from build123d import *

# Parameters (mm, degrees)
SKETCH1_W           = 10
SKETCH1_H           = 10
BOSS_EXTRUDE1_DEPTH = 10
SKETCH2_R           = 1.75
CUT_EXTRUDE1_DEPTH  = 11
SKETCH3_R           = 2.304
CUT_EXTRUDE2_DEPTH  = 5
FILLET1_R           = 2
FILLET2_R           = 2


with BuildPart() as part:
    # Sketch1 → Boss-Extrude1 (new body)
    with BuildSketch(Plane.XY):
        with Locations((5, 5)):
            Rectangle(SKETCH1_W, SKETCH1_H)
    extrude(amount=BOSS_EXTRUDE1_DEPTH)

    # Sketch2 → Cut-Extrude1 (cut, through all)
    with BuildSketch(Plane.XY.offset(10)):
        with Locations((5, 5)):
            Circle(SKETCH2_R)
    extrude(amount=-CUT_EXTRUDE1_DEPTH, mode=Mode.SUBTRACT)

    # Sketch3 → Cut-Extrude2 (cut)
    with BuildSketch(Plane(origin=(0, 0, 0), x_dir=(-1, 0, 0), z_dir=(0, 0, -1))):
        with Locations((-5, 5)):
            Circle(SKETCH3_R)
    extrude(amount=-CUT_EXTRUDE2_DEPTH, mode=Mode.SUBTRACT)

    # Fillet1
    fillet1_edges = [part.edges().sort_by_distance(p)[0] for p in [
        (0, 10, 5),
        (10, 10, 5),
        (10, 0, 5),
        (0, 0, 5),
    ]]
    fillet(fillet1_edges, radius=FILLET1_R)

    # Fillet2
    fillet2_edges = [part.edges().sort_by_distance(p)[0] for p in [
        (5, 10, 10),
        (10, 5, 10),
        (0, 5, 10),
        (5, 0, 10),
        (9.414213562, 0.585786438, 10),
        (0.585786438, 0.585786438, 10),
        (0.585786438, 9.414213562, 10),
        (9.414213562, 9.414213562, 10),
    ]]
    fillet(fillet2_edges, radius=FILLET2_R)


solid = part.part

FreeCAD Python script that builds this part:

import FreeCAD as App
import Part
import Sketcher


def edges_at(feature, points):
    """Names of the edges that pass closest to the given points."""
    edges = feature.Shape.Edges
    near = lambda p: min(range(len(edges)), key=lambda i: edges[i].distToShape(Part.Vertex(*p))[0])
    return sorted({f"Edge{near(p) + 1}" for p in points})

doc = App.newDocument("Part")
body = doc.addObject("PartDesign::Body", "Body")

sketch1 = body.newObject("Sketcher::SketchObject", "Sketch")
sketch1.AttachmentSupport = (doc.getObject("XY_Plane"), [""])
sketch1.MapMode = "FlatFace"
sketch1.addGeometry([
    Part.LineSegment(App.Vector(0, 10, 0), App.Vector(0, 0, 0)),
    Part.LineSegment(App.Vector(0, 0, 0), App.Vector(10, 0, 0)),
    Part.LineSegment(App.Vector(10, 0, 0), App.Vector(10, 10, 0)),
    Part.LineSegment(App.Vector(10, 10, 0), App.Vector(0, 10, 0)),
], False)
sketch1.addConstraint([
    Sketcher.Constraint("Coincident", 0, 2, 1, 1),
    Sketcher.Constraint("Coincident", 1, 2, 2, 1),
    Sketcher.Constraint("Coincident", 2, 2, 3, 1),
    Sketcher.Constraint("Coincident", 3, 2, 0, 1),
    Sketcher.Constraint("Vertical", 0),
    Sketcher.Constraint("Horizontal", 1),
    Sketcher.Constraint("Vertical", 2),
    Sketcher.Constraint("Horizontal", 3),
    Sketcher.Constraint("Coincident", 0, 2, -1, 1),
    Sketcher.Constraint("Equal", 3, 0),
    Sketcher.Constraint("DistanceX", 1, 1, 1, 2, 10.0),
])
pad1 = body.newObject("PartDesign::Pad", "Pad")
pad1.Profile = sketch1
pad1.Length = 10

sketch2 = body.newObject("Sketcher::SketchObject", "Sketch001")
sketch2.AttachmentSupport = (doc.getObject("XY_Plane"), [""])
sketch2.MapMode = "FlatFace"
sketch2.AttachmentOffset = App.Placement(App.Vector(0, 0, 10), App.Rotation())
sketch2.addGeometry(Part.Circle(App.Vector(5, 5, 0), App.Vector(0, 0, 1), 1.8), False)
sketch2.addConstraint([
    Sketcher.Constraint("Diameter", 0, 3.5),
    Sketcher.Constraint("DistanceX", -1, 1, 0, 3, 5.0),
    Sketcher.Constraint("DistanceY", -1, 1, 0, 3, 5.0),
])
pocket1 = body.newObject("PartDesign::Pocket", "Pocket")
pocket1.Profile = sketch2
pocket1.Type = "ThroughAll"

sketch3 = body.newObject("Sketcher::SketchObject", "Sketch002")
sketch3.AttachmentSupport = (doc.getObject("XY_Plane"), [""])
sketch3.MapMode = "FlatFace"
sketch3.addGeometry(Part.Circle(App.Vector(5, 5, 0), App.Vector(0, 0, 1), 2.3), False)
sketch3.addConstraint([
    Sketcher.Constraint("Diameter", 0, 4.608),
    Sketcher.Constraint("DistanceX", -1, 1, 0, 3, 5.0),
    Sketcher.Constraint("DistanceY", -1, 1, 0, 3, 5.0),
])
pocket2 = body.newObject("PartDesign::Pocket", "Pocket001")
pocket2.Profile = sketch3
pocket2.Length = 5
pocket2.Reversed = True
doc.recompute()

fillet = body.newObject("PartDesign::Fillet", "Fillet")
fillet.Base = (pocket2, edges_at(pocket2, [
    (0, 10, 5),
    (10, 10, 5),
    (10, 0, 5),
    (0, 0, 5),
]))
fillet.Radius = 2
doc.recompute()

fillet2 = body.newObject("PartDesign::Fillet", "Fillet001")
fillet2.Base = (fillet, edges_at(fillet, [
    (5, 10, 10),
    (10, 5, 10),
    (0, 5, 10),
    (5, 0, 10),
    (9.414, 0.586, 10),
    (0.586, 0.586, 10),
    (0.586, 9.414, 10),
    (9.414, 9.414, 10),
]))
fillet2.Radius = 2

doc.recompute()
